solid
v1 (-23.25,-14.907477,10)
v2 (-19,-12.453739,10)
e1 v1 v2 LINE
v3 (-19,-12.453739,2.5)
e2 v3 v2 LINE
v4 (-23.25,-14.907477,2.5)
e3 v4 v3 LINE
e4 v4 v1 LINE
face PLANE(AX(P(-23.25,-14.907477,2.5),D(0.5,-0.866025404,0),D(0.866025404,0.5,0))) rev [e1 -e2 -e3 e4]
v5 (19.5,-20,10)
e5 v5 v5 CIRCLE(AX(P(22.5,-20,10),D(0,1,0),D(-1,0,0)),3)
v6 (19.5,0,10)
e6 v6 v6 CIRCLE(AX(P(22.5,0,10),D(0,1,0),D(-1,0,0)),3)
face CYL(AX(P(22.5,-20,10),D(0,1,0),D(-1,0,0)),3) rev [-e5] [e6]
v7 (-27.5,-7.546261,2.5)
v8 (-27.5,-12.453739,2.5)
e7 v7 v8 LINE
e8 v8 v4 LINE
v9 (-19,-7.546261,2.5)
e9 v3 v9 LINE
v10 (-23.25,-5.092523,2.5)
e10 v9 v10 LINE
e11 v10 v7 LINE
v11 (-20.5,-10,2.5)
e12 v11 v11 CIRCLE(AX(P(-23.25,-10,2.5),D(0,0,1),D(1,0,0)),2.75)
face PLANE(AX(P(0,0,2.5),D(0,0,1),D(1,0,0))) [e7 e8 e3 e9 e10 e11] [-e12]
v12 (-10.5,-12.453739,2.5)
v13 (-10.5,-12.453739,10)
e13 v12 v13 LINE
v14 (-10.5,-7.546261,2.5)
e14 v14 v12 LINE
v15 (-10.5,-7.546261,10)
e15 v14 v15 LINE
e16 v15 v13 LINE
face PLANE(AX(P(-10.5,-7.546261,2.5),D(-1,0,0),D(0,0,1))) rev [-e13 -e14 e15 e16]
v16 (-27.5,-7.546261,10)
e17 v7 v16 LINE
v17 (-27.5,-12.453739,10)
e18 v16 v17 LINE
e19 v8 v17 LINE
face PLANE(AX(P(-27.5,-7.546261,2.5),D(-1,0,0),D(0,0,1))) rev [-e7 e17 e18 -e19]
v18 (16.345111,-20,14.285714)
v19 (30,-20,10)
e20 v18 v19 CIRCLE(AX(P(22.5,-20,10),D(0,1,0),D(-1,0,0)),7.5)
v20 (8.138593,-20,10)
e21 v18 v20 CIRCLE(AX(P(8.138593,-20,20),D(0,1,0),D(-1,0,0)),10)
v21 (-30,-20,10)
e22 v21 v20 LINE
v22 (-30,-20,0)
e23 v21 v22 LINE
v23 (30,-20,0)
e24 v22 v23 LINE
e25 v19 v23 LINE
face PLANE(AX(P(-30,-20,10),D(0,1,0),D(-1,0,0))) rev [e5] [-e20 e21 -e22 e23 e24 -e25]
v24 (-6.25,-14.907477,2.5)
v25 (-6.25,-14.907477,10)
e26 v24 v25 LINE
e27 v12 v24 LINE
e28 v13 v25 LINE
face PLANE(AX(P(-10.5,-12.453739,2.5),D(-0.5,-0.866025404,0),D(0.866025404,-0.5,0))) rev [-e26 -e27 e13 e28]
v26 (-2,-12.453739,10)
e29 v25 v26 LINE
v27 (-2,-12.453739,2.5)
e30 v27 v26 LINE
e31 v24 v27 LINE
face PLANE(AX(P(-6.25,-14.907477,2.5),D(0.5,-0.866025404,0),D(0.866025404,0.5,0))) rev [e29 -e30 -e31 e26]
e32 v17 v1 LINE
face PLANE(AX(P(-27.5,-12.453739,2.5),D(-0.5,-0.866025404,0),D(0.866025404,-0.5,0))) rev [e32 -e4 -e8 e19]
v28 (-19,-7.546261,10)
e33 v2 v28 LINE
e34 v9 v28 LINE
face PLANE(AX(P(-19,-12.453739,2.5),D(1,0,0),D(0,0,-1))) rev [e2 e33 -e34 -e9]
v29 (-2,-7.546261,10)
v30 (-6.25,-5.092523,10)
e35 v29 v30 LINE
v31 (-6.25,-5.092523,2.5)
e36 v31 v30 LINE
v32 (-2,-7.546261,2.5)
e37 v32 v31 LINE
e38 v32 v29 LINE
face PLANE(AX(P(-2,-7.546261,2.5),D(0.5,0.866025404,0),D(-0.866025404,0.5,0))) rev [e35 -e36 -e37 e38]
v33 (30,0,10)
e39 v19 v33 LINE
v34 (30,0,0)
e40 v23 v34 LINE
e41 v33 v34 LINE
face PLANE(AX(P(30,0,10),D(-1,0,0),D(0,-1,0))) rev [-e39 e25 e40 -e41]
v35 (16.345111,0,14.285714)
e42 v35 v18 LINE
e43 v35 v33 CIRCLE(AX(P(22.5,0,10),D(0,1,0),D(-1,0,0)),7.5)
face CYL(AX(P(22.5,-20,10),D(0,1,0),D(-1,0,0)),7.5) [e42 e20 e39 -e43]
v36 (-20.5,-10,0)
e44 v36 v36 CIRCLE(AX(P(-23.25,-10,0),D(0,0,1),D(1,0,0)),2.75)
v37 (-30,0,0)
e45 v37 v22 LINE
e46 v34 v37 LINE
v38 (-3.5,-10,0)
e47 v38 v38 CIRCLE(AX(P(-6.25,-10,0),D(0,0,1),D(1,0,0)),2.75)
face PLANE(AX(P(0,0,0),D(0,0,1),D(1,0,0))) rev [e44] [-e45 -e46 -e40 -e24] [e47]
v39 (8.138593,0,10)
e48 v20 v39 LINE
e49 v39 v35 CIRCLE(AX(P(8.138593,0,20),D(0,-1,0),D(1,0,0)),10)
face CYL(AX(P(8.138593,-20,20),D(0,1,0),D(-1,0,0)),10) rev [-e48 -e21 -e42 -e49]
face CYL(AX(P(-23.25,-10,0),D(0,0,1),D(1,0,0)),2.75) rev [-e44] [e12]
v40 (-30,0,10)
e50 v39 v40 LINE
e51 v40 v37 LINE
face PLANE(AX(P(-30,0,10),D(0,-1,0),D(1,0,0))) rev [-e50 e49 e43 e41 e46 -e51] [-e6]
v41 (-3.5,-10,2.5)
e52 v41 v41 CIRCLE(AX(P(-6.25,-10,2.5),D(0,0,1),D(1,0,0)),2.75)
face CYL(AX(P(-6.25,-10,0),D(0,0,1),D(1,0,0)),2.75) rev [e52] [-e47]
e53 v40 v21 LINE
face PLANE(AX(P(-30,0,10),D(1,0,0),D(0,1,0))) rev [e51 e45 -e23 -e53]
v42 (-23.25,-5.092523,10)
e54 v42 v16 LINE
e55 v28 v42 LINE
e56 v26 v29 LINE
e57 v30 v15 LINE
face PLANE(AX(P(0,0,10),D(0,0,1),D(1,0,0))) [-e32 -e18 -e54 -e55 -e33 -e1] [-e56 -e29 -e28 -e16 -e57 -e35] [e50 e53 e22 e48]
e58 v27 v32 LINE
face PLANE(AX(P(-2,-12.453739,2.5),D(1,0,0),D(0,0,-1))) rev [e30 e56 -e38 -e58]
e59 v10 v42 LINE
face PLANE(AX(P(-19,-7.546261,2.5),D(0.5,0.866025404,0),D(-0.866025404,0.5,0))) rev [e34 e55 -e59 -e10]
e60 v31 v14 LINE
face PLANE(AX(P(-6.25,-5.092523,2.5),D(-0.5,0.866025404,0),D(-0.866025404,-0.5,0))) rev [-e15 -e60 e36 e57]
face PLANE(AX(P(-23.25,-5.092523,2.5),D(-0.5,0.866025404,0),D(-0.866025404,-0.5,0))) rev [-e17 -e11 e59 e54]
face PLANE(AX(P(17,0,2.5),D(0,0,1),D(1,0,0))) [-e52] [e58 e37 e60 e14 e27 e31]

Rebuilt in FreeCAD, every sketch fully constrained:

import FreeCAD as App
import Part
import Sketcher

V = App.Vector
Q = App.Units.Quantity


def edges_at(feature, points):
    """Names of the edges that pass closest to the given points."""
    edges = feature.Shape.Edges
    near = lambda p: min(range(len(edges)), key=lambda i: edges[i].distToShape(Part.Vertex(*p))[0])
    return sorted({f"Edge{near(p) + 1}" for p in points})


def add_polygon(sketch, points):
    """Adds a closed chain of lines whose ends are joined by coincident constraints."""
    first, n = sketch.GeometryCount, len(points)
    for a, b in zip(points, points[1:] + points[:1]):
        sketch.addGeometry(Part.LineSegment(App.Vector(*a, 0), App.Vector(*b, 0)), False)
    for i in range(n):
        sketch.addConstraint(Sketcher.Constraint("Coincident", first + i, 2, first + (i + 1) % n, 1))

doc = App.newDocument("Part")
body = doc.addObject("PartDesign::Body", "Body")

# Sketch on XY plane
sketch1 = body.newObject("Sketcher::SketchObject", "Sketch")
sketch1.AttachmentSupport = (doc.getObject("XY_Plane"), [""])
sketch1.MapMode = "FlatFace"
add_polygon(sketch1, [(-30, 0), (-30, -20), (30, -20), (30, 0)])  # lines 0-3
sketch1.addConstraint(Sketcher.Constraint("Vertical", 0))
sketch1.addConstraint(Sketcher.Constraint("Horizontal", 1))
sketch1.addConstraint(Sketcher.Constraint("Vertical", 2))
sketch1.addConstraint(Sketcher.Constraint("Horizontal", 3))
sketch1.addConstraint(Sketcher.Constraint("Symmetric", 2, 2, 3, 2, -1, 1))
sketch1.addConstraint(Sketcher.Constraint("DistanceX", 1, 1, 1, 2, 60.0))
sketch1.addConstraint(Sketcher.Constraint("DistanceY", 0, 2, 0, 1, 20.0))
pad1 = body.newObject("PartDesign::Pad", "Pad")
pad1.Profile = sketch1
pad1.Length = 10

# Sketch on XY plane
sketch2 = body.newObject("Sketcher::SketchObject", "Sketch001")
sketch2.AttachmentSupport = (doc.getObject("XY_Plane"), [""])
sketch2.MapMode = "FlatFace"
sketch2.AttachmentOffset = App.Placement(V(0, 0, 10), App.Rotation())
add_polygon(sketch2, [(-23.25, -14.907477), (-19, -12.453739), (-19, -7.546261), (-23.25, -5.092523), (-27.5, -7.546261), (-27.5, -12.453739)])  # lines 0-5
sketch2.addConstraint(Sketcher.Constraint("Vertical", 1))
sketch2.addConstraint(Sketcher.Constraint("Vertical", 4))
sketch2.addConstraint(Sketcher.Constraint("Parallel", 0, 3))
sketch2.addConstraint(Sketcher.Constraint("Parallel", 2, 5))
sketch2.addConstraint(Sketcher.Constraint("Horizontal", 1, 2, 3, 2))
sketch2.addConstraint(Sketcher.Constraint("Horizontal", 0, 2, 4, 2))
sketch2.addConstraint(Sketcher.Constraint("Vertical", 2, 2, 5, 2))
sketch2.addConstraint(Sketcher.Constraint("Angle", 0, Q("30 deg")))
sketch2.addConstraint(Sketcher.Constraint("DistanceX", 0, 2, -1, 1, 19.0))
sketch2.addConstraint(Sketcher.Constraint("DistanceX", 3, 2, -1, 1, 27.5))
sketch2.addConstraint(Sketcher.Constraint("DistanceY", 1, 1, 1, 2, 4.907477))
sketch2.addConstraint(Sketcher.Constraint("DistanceY", 0, 2, -1, 1, 12.453739))
pocket1 = body.newObject("PartDesign::Pocket", "Pocket")
pocket1.Profile = sketch2
pocket1.Length = 7.5

# Sketch on XY plane
sketch3 = body.newObject("Sketcher::SketchObject", "Sketch002")
sketch3.AttachmentSupport = (doc.getObject("XY_Plane"), [""])
sketch3.MapMode = "FlatFace"
sketch3.AttachmentOffset = App.Placement(V(0, 0, 2.5), App.Rotation())
sketch3.addGeometry(Part.Circle(V(-23.25, -10, 0), V(0, 0, 1), 2.75), False)
sketch3.addConstraint(Sketcher.Constraint("Diameter", 0, 5.5))
sketch3.addConstraint(Sketcher.Constraint("DistanceY", 0, 3, -1, 1, 10.0))
sketch3.addConstraint(Sketcher.Constraint("DistanceX", 0, 3, -1, 1, 23.25))
pocket2 = body.newObject("PartDesign::Pocket", "Pocket001")
pocket2.Profile = sketch3
pocket2.Type = "ThroughAll"
doc.recompute()

linearpattern = body.newObject("PartDesign::LinearPattern", "LinearPattern")
linearpattern.Originals = [pocket1, pocket2]
linearpattern.Direction = (doc.getObject("X_Axis"), [""])
linearpattern.Mode = "offset"
linearpattern.Offset = 17
linearpattern.Occurrences = 2
body.Tip = linearpattern

# Sketch on XZ plane
sketch4 = body.newObject("Sketcher::SketchObject", "Sketch003")
sketch4.AttachmentSupport = (doc.getObject("XZ_Plane"), [""])
sketch4.MapMode = "FlatFace"
sketch4.addGeometry(Part.Circle(V(22.5, 10, 0), V(0, 0, 1), 7.5), False)
sketch4.addConstraint(Sketcher.Constraint("Diameter", 0, 15.0))
sketch4.addConstraint(Sketcher.Constraint("DistanceY", -1, 1, 0, 3, 10.0))
sketch4.addConstraint(Sketcher.Constraint("DistanceX", -1, 1, 0, 3, 22.5))
pad2 = body.newObject("PartDesign::Pad", "Pad001")
pad2.Profile = sketch4
pad2.Type = "UpToLast"

# Sketch on XZ plane
sketch5 = body.newObject("Sketcher::SketchObject", "Sketch004")
sketch5.AttachmentSupport = (doc.getObject("XZ_Plane"), [""])
sketch5.MapMode = "FlatFace"
sketch5.addGeometry(Part.Circle(V(22.5, 10, 0), V(0, 0, 1), 3), False)
sketch5.addConstraint(Sketcher.Constraint("Diameter", 0, 6.0))
sketch5.addConstraint(Sketcher.Constraint("DistanceY", -1, 1, 0, 3, 10.0))
sketch5.addConstraint(Sketcher.Constraint("DistanceX", -1, 1, 0, 3, 22.5))
pocket3 = body.newObject("PartDesign::Pocket", "Pocket002")
pocket3.Profile = sketch5
pocket3.Type = "ThroughAll"
pocket3.Reversed = True
doc.recompute()

fillet = body.newObject("PartDesign::Fillet", "Fillet")
fillet.Base = (pocket3, edges_at(pocket3, [(15, -10, 10)]))
fillet.Radius = 10

doc.recompute()
